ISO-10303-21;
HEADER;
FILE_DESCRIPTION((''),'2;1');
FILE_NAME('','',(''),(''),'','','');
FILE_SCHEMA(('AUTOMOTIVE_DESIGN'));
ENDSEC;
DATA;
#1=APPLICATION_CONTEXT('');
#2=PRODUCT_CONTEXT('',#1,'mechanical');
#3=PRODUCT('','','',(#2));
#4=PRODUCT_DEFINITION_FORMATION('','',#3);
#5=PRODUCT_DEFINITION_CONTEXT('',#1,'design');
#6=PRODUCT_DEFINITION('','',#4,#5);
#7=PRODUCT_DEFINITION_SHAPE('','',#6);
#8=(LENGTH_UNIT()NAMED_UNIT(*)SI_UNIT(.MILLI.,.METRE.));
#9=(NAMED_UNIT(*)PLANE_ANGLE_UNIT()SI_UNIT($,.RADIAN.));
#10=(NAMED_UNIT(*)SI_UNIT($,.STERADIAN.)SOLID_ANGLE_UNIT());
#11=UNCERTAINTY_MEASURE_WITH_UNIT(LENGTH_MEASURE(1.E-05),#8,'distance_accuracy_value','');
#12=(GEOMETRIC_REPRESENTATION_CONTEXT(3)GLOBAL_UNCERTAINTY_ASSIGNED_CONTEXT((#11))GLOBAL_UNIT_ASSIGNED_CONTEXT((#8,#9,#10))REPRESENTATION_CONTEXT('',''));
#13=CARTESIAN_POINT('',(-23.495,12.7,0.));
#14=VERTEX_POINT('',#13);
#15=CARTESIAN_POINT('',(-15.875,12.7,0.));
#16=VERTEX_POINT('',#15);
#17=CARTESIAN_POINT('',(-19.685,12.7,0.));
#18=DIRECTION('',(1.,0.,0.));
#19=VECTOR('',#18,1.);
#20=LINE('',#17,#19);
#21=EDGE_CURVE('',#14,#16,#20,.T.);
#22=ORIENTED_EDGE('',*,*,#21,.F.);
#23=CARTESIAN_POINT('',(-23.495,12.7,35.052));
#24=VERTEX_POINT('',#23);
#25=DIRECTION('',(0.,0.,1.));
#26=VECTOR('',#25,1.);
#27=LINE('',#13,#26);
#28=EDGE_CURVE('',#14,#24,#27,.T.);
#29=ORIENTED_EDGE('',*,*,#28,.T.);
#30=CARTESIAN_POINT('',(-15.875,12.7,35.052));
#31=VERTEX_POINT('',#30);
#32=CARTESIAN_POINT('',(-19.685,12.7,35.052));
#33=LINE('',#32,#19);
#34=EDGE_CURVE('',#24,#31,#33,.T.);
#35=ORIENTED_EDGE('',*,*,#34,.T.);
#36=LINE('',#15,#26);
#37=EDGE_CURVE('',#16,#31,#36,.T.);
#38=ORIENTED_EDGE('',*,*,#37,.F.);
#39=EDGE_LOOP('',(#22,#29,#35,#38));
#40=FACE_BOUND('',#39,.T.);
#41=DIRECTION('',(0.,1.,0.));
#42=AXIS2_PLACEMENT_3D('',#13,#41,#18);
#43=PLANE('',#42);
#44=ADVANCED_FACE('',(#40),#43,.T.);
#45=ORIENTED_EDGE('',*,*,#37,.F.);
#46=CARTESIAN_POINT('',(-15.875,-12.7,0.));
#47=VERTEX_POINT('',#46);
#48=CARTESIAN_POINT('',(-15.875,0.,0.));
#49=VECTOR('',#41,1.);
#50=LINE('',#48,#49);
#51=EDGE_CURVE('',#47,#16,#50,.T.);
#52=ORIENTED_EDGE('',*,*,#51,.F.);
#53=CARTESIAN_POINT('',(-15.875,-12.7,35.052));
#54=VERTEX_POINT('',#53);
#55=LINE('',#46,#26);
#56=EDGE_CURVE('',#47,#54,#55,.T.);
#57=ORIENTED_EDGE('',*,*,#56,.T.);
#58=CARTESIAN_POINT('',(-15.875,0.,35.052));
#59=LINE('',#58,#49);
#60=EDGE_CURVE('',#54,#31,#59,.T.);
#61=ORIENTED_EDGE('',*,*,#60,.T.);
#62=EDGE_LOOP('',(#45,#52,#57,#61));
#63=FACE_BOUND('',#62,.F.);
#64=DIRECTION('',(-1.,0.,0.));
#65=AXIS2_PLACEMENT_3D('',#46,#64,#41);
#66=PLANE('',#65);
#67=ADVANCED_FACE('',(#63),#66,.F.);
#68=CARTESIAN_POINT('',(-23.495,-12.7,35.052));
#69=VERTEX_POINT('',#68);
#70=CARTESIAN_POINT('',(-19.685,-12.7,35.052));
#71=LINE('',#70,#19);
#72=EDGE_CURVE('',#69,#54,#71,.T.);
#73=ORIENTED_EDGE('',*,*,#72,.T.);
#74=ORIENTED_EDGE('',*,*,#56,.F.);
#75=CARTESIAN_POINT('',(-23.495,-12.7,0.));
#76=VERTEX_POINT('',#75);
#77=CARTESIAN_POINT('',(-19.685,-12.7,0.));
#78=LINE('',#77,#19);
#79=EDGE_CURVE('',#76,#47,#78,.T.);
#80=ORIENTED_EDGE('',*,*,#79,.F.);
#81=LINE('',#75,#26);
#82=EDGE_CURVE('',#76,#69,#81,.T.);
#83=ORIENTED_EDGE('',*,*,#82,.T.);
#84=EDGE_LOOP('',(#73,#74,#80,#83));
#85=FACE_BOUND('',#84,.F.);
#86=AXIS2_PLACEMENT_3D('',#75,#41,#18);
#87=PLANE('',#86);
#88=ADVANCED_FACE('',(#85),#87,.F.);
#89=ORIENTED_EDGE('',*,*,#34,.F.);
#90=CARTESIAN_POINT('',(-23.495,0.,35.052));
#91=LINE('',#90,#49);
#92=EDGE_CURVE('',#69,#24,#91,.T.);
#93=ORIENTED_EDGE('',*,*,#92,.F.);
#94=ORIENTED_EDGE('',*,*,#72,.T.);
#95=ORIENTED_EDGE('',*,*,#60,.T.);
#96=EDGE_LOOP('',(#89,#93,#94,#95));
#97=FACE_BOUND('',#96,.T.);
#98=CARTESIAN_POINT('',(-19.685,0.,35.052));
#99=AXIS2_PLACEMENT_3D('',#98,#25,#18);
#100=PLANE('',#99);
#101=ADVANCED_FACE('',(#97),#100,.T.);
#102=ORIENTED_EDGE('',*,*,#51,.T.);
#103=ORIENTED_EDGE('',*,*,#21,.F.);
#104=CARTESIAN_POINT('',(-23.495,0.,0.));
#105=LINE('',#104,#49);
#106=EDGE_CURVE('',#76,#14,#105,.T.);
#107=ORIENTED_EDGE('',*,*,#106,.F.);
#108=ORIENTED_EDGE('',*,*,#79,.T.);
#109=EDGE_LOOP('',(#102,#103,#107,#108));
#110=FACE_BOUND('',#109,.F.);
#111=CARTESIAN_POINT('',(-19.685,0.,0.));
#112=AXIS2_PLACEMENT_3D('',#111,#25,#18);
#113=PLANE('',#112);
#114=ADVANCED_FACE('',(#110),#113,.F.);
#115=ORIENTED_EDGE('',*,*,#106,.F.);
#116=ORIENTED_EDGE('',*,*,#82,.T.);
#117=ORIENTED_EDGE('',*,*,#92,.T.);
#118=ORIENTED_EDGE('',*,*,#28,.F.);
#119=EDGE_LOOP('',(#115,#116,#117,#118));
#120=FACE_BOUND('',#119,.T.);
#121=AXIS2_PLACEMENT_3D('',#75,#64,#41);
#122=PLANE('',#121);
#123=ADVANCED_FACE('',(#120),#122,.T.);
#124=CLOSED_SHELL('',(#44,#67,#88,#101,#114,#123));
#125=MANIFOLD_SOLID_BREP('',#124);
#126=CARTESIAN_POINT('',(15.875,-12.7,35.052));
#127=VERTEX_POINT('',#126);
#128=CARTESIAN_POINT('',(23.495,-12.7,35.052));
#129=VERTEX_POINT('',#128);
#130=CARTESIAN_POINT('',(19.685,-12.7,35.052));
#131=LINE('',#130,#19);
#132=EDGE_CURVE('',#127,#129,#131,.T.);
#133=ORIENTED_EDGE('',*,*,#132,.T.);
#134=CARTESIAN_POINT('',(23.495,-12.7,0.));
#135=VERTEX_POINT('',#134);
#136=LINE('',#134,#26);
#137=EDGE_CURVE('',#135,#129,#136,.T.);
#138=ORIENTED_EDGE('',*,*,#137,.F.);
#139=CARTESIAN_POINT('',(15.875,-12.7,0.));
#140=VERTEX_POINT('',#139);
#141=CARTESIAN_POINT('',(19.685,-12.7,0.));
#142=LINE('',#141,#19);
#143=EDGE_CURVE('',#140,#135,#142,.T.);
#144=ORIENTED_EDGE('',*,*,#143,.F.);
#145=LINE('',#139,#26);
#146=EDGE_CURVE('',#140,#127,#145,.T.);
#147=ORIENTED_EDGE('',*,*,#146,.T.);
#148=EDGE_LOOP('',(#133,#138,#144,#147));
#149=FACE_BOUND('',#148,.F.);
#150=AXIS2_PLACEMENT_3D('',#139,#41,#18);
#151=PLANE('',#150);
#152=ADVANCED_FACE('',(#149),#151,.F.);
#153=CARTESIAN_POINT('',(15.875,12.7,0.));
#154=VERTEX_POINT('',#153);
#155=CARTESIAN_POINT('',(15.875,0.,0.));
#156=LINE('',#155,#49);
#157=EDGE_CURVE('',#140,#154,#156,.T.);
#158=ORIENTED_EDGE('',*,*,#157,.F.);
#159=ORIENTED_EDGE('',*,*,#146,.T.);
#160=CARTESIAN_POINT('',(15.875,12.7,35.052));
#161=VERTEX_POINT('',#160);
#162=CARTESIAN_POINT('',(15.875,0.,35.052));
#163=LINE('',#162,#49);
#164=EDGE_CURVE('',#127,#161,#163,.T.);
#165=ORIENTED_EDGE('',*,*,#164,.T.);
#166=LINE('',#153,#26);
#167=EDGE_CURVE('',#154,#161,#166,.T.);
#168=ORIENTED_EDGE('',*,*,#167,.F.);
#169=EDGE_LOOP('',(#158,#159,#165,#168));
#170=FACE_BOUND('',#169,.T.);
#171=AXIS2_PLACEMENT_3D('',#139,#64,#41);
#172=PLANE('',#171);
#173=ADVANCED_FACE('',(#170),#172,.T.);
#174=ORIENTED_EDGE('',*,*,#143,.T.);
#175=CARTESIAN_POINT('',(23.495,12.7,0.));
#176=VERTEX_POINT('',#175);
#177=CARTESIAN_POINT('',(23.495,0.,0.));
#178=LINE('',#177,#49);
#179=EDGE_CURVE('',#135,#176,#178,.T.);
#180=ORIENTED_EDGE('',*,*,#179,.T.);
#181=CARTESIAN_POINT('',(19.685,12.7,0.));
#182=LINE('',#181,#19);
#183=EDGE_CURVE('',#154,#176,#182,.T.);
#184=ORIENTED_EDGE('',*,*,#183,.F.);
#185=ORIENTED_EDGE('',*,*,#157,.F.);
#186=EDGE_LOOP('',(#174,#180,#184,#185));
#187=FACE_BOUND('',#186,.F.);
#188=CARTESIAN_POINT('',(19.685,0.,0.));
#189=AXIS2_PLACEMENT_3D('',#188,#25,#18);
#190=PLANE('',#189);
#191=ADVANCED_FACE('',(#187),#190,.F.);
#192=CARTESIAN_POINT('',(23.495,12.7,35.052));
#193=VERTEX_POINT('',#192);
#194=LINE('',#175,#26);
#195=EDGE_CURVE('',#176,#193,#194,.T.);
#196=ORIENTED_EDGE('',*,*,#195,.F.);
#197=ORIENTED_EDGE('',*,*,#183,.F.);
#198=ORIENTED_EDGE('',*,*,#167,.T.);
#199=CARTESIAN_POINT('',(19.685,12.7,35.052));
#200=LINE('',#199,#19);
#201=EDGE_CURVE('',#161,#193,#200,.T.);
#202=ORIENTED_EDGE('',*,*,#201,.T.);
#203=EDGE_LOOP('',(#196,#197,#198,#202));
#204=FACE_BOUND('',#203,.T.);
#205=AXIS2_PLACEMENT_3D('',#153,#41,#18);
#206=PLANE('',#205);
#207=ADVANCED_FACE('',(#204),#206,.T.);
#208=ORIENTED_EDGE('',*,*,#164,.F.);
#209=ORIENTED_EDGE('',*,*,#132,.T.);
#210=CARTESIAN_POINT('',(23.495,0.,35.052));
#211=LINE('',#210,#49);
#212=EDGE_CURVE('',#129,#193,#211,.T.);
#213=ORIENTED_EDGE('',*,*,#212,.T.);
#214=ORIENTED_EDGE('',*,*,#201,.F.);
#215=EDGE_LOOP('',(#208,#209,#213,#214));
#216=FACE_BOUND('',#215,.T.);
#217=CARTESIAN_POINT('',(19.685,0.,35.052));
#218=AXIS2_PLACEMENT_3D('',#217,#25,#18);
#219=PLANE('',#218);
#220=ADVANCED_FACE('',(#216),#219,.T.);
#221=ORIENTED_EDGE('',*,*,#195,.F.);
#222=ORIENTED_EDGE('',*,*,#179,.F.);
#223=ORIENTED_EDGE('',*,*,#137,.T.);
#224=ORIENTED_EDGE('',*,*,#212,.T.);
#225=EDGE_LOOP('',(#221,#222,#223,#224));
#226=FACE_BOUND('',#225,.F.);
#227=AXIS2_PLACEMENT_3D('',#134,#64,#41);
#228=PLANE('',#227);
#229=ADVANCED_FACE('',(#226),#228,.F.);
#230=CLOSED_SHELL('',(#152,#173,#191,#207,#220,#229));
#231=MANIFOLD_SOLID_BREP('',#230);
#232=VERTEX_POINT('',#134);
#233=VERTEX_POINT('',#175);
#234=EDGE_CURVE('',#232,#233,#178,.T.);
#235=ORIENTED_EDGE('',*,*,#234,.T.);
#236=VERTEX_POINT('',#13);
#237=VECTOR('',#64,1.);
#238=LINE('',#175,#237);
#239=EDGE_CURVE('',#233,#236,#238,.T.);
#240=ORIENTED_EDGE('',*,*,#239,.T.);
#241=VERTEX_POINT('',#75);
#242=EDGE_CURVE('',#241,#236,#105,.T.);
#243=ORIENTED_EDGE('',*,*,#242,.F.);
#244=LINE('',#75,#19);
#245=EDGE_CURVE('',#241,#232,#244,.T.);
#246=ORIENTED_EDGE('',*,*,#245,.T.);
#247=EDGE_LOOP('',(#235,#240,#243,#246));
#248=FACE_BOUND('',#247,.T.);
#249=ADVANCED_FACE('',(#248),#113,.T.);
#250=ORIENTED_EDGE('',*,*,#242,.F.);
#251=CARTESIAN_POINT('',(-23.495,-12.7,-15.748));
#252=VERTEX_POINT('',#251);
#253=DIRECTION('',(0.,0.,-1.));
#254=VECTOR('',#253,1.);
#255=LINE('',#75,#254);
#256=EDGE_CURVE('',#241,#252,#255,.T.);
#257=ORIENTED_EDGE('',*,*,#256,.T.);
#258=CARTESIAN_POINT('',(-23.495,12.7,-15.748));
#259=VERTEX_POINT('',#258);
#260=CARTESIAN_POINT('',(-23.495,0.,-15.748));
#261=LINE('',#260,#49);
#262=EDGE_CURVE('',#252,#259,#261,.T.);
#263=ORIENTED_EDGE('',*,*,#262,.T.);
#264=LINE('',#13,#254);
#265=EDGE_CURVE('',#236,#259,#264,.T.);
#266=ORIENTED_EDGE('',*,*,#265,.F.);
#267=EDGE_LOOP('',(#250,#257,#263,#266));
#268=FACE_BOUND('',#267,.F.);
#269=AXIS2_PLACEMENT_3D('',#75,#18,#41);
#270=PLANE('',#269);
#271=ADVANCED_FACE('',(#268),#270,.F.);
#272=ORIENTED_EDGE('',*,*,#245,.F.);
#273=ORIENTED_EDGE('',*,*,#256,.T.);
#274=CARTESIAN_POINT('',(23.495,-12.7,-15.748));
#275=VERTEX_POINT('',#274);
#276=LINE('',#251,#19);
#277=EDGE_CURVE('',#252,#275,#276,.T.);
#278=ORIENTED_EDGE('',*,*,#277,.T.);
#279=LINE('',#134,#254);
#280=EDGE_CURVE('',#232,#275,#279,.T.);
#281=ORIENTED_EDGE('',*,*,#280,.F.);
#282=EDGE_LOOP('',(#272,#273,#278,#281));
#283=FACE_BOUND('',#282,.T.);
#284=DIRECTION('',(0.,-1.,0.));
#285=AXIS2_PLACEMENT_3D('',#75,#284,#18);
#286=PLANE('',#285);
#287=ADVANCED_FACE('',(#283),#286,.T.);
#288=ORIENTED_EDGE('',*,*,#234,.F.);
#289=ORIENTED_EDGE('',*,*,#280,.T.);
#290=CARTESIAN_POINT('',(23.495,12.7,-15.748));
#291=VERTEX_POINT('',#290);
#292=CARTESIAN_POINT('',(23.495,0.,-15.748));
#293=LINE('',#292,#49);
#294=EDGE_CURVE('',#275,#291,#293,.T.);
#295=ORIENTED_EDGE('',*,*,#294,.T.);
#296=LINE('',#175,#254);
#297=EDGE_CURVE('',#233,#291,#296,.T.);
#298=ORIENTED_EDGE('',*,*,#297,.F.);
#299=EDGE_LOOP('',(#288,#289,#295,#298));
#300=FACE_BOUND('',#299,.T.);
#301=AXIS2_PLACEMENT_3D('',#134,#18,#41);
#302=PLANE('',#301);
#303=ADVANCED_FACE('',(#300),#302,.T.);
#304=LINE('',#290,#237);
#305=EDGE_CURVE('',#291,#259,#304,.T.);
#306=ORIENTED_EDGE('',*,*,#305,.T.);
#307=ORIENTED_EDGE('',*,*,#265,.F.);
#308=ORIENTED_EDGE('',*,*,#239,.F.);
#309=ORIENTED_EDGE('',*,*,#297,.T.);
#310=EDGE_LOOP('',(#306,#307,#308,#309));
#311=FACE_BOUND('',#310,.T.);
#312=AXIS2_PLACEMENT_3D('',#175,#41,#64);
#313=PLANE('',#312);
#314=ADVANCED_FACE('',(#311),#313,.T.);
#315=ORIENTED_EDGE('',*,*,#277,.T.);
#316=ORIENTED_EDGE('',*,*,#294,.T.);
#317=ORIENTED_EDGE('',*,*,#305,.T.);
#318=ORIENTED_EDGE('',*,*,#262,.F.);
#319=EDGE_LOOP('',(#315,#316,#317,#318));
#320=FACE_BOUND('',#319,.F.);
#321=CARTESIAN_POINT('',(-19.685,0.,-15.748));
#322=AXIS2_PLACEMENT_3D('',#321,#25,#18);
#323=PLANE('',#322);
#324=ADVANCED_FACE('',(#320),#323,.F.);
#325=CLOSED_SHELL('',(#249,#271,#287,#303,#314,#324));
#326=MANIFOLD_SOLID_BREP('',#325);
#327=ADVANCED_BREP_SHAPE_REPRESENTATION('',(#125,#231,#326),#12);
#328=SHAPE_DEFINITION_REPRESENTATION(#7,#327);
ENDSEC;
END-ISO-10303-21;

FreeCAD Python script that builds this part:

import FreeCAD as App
import Part
import Sketcher
Q = App.Units.Quantity


def add_polygon(sketch, points):
    """Adds a closed chain of lines whose ends are joined by coincident constraints."""
    first, n = sketch.GeometryCount, len(points)
    for a, b in zip(points, points[1:] + points[:1]):
        sketch.addGeometry(Part.LineSegment(App.Vector(*a, 0), App.Vector(*b, 0)), False)
    for i in range(n):
        sketch.addConstraint(Sketcher.Constraint("Coincident", first + i, 2, first + (i + 1) % n, 1))

doc = App.newDocument("Part")
params = doc.addObject("Spreadsheet::Sheet", "Params")
for row, (alias, value) in enumerate([
    ("sketch1_height", "1 in"),
    ("sketch1_width", "0.3 in"),
    ("pad1_length", "1.38 in"),
    ("sketch2_height", "1 in"),
    ("sketch2_width", "1.85 in"),
    ("pad2_length", "0.62 in"),
], start=1):
    params.set(f"A{row}", alias)
    params.set(f"B{row}", "=" + value)
    params.setAlias(f"B{row}", alias)

body = doc.addObject("PartDesign::Body", "Body")
body.AllowCompound = True

# Sketch on XY plane
sketch1 = body.newObject("Sketcher::SketchObject", "Sketch")
sketch1.AttachmentSupport = (doc.getObject("XY_Plane"), [""])
sketch1.MapMode = "FlatFace"
add_polygon(sketch1, [(-23, 13), (-23, -13), (-16, -13), (-16, 13)])  # lines 0-3
add_polygon(sketch1, [(16, 13), (16, -13), (23, -13), (23, 13)])  # lines 4-7
sketch1.addConstraint([
    Sketcher.Constraint("Vertical", 0),
    Sketcher.Constraint("Horizontal", 1),
    Sketcher.Constraint("Vertical", 2),
    Sketcher.Constraint("Horizontal", 3),
    Sketcher.Constraint("Vertical", 4),
    Sketcher.Constraint("Horizontal", 5),
    Sketcher.Constraint("Vertical", 6),
    Sketcher.Constraint("Horizontal", 7),
    Sketcher.Constraint("Symmetric", 2, 2, 4, 2, -1, 1),
    Sketcher.Constraint("Symmetric", 0, 2, 6, 2, -1, 1),
    Sketcher.Constraint("Horizontal", 1, 2, 4, 2),
    Sketcher.Constraint("DistanceY", 0, 2, 0, 1, Q("1 in")),
    Sketcher.Constraint("DistanceX", 1, 1, 1, 2, Q("0.3 in")),
    Sketcher.Constraint("DistanceX", 1, 2, 4, 2, Q("1.25 in")),
])
sketch1.setExpression("Constraints[19]", "Params.sketch1_height")
sketch1.setExpression("Constraints[20]", "Params.sketch1_width")
pad1 = body.newObject("PartDesign::Pad", "Pad")
pad1.Profile = sketch1
pad1.setExpression("Length", "Params.pad1_length")
body2 = doc.addObject("PartDesign::Body", "Body001")

# Sketch on XY plane
sketch2 = body2.newObject("Sketcher::SketchObject", "Sketch001")
sketch2.AttachmentSupport = (doc.getObject("XY_Plane001"), [""])
sketch2.MapMode = "FlatFace"
add_polygon(sketch2, [(-23, 13), (-23, -13), (23, -13), (23, 13)])  # lines 0-3
sketch2.addConstraint([
    Sketcher.Constraint("Vertical", 0),
    Sketcher.Constraint("Horizontal", 1),
    Sketcher.Constraint("Vertical", 2),
    Sketcher.Constraint("Horizontal", 3),
    Sketcher.Constraint("Symmetric", 0, 2, 2, 2, -1, 1),
    Sketcher.Constraint("DistanceY", 0, 2, 0, 1, Q("1 in")),
    Sketcher.Constraint("DistanceX", 1, 1, 1, 2, Q("1.85 in")),
])
sketch2.setExpression("Constraints[9]", "Params.sketch2_height")
sketch2.setExpression("Constraints[10]", "Params.sketch2_width")
pad2 = body2.newObject("PartDesign::Pad", "Pad001")
pad2.Profile = sketch2
pad2.setExpression("Length", "Params.pad2_length")
pad2.Reversed = True

doc.recompute()
